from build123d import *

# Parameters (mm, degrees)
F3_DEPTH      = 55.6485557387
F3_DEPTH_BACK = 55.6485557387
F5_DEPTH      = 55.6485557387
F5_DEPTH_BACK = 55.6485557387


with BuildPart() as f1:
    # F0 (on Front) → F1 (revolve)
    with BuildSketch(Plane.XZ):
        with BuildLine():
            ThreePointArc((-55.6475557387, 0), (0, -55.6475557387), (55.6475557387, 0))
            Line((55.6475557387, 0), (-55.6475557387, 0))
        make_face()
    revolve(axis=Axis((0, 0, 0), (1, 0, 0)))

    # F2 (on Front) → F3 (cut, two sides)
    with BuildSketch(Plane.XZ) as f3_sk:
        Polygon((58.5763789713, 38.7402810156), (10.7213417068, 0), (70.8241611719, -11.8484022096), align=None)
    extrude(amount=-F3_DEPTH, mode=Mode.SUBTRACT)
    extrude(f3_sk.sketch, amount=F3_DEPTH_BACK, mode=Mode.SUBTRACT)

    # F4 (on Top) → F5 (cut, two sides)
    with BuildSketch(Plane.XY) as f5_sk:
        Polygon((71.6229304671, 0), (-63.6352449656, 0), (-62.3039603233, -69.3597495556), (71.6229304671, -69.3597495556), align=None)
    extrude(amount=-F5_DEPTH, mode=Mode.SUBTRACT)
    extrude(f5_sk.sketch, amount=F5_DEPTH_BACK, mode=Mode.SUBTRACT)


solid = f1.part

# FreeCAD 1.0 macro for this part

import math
import FreeCAD as App
import Part
import Sketcher

V = App.Vector
Q = App.Units.Quantity


def add_polygon(sketch, points):
    """Adds a closed chain of lines whose ends are joined by coincident constraints."""
    first, n = sketch.GeometryCount, len(points)
    for a, b in zip(points, points[1:] + points[:1]):
        sketch.addGeometry(Part.LineSegment(App.Vector(*a, 0), App.Vector(*b, 0)), False)
    for i in range(n):
        sketch.addConstraint(Sketcher.Constraint("Coincident", first + i, 2, first + (i + 1) % n, 1))

doc = App.newDocument("Part")
params = doc.addObject("Spreadsheet::Sheet", "Params")
for row, (alias, value) in enumerate([
    ("revolution_angle", "360 deg"),
], start=1):
    params.set(f"A{row}", alias)
    params.set(f"B{row}", "=" + value)
    params.setAlias(f"B{row}", alias)

body = doc.addObject("PartDesign::Body", "Body")

sketch1 = body.newObject("Sketcher::SketchObject", "Sketch")
sketch1.AttachmentSupport = (doc.getObject("XZ_Plane"), [""])
sketch1.MapMode = "FlatFace"
sketch1.addGeometry([
    Part.ArcOfCircle(Part.Circle(V(0, 0, 0), V(0, 0, 1), 55.647556), math.radians(180), math.radians(360)),
    Part.LineSegment(V(55.647556, 0, 0), V(-55.647556, 0, 0)),
], False)
sketch1.addConstraint([
    Sketcher.Constraint("Coincident", 0, 1, 1, 2),
    Sketcher.Constraint("Coincident", 1, 1, 0, 2),
    Sketcher.Constraint("Horizontal", 1),
    Sketcher.Constraint("Coincident", 0, 3, -1, 1),
    Sketcher.Constraint("PointOnObject", 0, 1, -1),
    Sketcher.Constraint("Radius", 0, Q("55.647556 mm")),
])
revolution = body.newObject("PartDesign::Revolution", "Revolution")
revolution.Profile = sketch1
revolution.ReferenceAxis = (sketch1, ["H_Axis"])
revolution.setExpression("Angle", "Params.revolution_angle")

sketch2 = body.newObject("Sketcher::SketchObject", "Sketch001")
sketch2.AttachmentSupport = (doc.getObject("XZ_Plane"), [""])
sketch2.MapMode = "FlatFace"
add_polygon(sketch2, [(58.576379, 38.740281), (10.721342, 0), (70.824161, -11.848402)])
sketch2.addConstraint([
    Sketcher.Constraint("PointOnObject", 0, 2, -1),
    Sketcher.Constraint("Distance", 0, Q("61.570398 mm")),
    Sketcher.Constraint("Distance", 1, Q("61.259559 mm")),
    Sketcher.Constraint("DistanceX", -1, 1, 0, 2, Q("10.721342 mm")),
    Sketcher.Constraint("DistanceX", -1, 1, 1, 2, Q("70.824161 mm")),
    Sketcher.Constraint("DistanceX", -1, 1, 2, 2, Q("58.576379 mm")),
])
pocket1 = body.newObject("PartDesign::Pocket", "Pocket")
pocket1.Profile = sketch2
pocket1.Type = "ThroughAll"
pocket1.Midplane = True

sketch3 = body.newObject("Sketcher::SketchObject", "Sketch002")
sketch3.AttachmentSupport = (doc.getObject("XY_Plane"), [""])
sketch3.MapMode = "FlatFace"
add_polygon(sketch3, [(71.62293, 0), (-63.635245, 0), (-62.30396, -69.35975), (71.62293, -69.35975)])
sketch3.addConstraint([
    Sketcher.Constraint("Horizontal", 0),
    Sketcher.Constraint("Horizontal", 2),
    Sketcher.Constraint("Vertical", 3),
    Sketcher.Constraint("PointOnObject", 0, 2, -1),
    Sketcher.Constraint("DistanceX", 2, 1, 2, 2, Q("133.926891 mm")),
    Sketcher.Constraint("DistanceY", 3, 1, 3, 2, Q("69.35975 mm")),
    Sketcher.Constraint("DistanceX", 0, 2, 0, 1, Q("135.258175 mm")),
    Sketcher.Constraint("DistanceX", 1, 2, -1, 1, Q("62.30396 mm")),
])
pocket2 = body.newObject("PartDesign::Pocket", "Pocket001")
pocket2.Profile = sketch3
pocket2.Type = "ThroughAll"
pocket2.Midplane = True

doc.recompute()
